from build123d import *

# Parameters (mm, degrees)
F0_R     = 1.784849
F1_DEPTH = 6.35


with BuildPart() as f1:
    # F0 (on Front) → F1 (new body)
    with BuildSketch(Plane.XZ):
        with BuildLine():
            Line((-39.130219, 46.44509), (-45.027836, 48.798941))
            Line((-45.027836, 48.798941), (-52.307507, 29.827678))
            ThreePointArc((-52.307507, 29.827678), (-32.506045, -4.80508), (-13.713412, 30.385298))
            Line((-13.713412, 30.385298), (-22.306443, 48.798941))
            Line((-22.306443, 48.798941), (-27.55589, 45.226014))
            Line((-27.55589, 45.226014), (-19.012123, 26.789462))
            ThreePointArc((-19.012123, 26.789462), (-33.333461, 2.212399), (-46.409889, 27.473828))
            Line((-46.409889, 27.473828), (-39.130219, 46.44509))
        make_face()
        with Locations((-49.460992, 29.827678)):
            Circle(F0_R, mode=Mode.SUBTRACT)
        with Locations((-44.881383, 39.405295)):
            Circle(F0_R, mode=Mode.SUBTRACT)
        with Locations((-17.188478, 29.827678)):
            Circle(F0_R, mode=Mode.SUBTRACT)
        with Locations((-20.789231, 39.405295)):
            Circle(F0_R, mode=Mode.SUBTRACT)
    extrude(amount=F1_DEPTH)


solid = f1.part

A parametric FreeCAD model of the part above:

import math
import FreeCAD as App
import Part
import Sketcher

V = App.Vector
Q = App.Units.Quantity

doc = App.newDocument("Part")
body = doc.addObject("PartDesign::Body", "Body")

sketch1 = doc.addObject("Sketcher::SketchObject", "Sketch")
body.addObject(sketch1)
sketch1.AttachmentSupport = (doc.XZ_Plane, [""])
sketch1.MapMode = "FlatFace"
sketch1.addGeometry(Part.LineSegment(V(-39.1, 46.4, 0), V(-45, 48.8, 0)), False)
sketch1.addGeometry(Part.LineSegment(V(-45, 48.8, 0), V(-52.3, 29.8, 0)), False)
sketch1.addGeometry(Part.ArcOfCircle(Part.Circle(V(-32.8, 18, 0), V(0, 0, 1), 22.8), math.radians(149), math.radians(393)), False)
sketch1.addGeometry(Part.LineSegment(V(-13.7, 30.4, 0), V(-22.3, 48.8, 0)), False)
sketch1.addGeometry(Part.LineSegment(V(-22.3, 48.8, 0), V(-27.6, 45.2, 0)), False)
sketch1.addGeometry(Part.LineSegment(V(-27.6, 45.2, 0), V(-19, 26.8, 0)), False)
sketch1.addGeometry(Part.ArcOfCircle(Part.Circle(V(-32.9, 18.4, 0), V(0, 0, 1), 16.2), math.radians(146), math.radians(391)), False)
sketch1.addGeometry(Part.LineSegment(V(-46.4, 27.5, 0), V(-39.1, 46.4, 0)), False)
sketch1.addGeometry(Part.Circle(V(-49.5, 29.8, 0), V(0, 0, 1), 1.8), False)
sketch1.addGeometry(Part.Circle(V(-17.2, 29.8, 0), V(0, 0, 1), 1.8), False)
sketch1.addGeometry(Part.Circle(V(-44.9, 39.4, 0), V(0, 0, 1), 1.8), False)
sketch1.addGeometry(Part.Circle(V(-20.8, 39.4, 0), V(0, 0, 1), 1.8), False)
sketch1.addConstraint(Sketcher.Constraint("Coincident", 0, 2, 1, 1))
sketch1.addConstraint(Sketcher.Constraint("Coincident", 1, 2, 2, 1))
sketch1.addConstraint(Sketcher.Constraint("Coincident", 2, 2, 3, 1))
sketch1.addConstraint(Sketcher.Constraint("Coincident", 3, 2, 4, 1))
sketch1.addConstraint(Sketcher.Constraint("Coincident", 4, 2, 5, 1))
sketch1.addConstraint(Sketcher.Constraint("Coincident", 5, 2, 6, 2))
sketch1.addConstraint(Sketcher.Constraint("Coincident", 6, 1, 7, 1))
sketch1.addConstraint(Sketcher.Constraint("Coincident", 7, 2, 0, 1))
sketch1.addConstraint(Sketcher.Constraint("Equal", 8, 9))
sketch1.addConstraint(Sketcher.Constraint("Equal", 9, 10))
sketch1.addConstraint(Sketcher.Constraint("Equal", 10, 11))
sketch1.addConstraint(Sketcher.Constraint("Parallel", 1, 7))
sketch1.addConstraint(Sketcher.Constraint("Horizontal", 8, 3, 9, 3))
sketch1.addConstraint(Sketcher.Constraint("Horizontal", 10, 3, 11, 3))
sketch1.addConstraint(Sketcher.Constraint("Horizontal", 9, 3, 1, 2))
sketch1.addConstraint(Sketcher.Constraint("Horizontal", 0, 2, 3, 2))
sketch1.addConstraint(Sketcher.Constraint("Equal", 1, 3))
sketch1.addConstraint(Sketcher.Constraint("Equal", 0, 4))
sketch1.addConstraint(Sketcher.Constraint("Equal", 3, 5))
sketch1.addConstraint(Sketcher.Constraint("Equal", 5, 7))
sketch1.addConstraint(Sketcher.Constraint("Distance", 1, Q("0.8 in")))
sketch1.addConstraint(Sketcher.Constraint("Distance", 0, Q("0.25 in")))
sketch1.addConstraint(Sketcher.Constraint("Diameter", 8, Q("3.569698 mm")))
sketch1.addConstraint(Sketcher.Constraint("Radius", 2, Q("22.791295 mm")))
sketch1.addConstraint(Sketcher.Constraint("Radius", 6, Q("16.230035 mm")))
sketch1.addConstraint(Sketcher.Constraint("DistanceY", 8, 3, 0, 2, Q("0.7469001 in")))
sketch1.addConstraint(Sketcher.Constraint("DistanceY", -1, 1, 2, 2, Q("30.385298 mm")))
sketch1.addConstraint(Sketcher.Constraint("DistanceX", 6, 3, 9, 3, Q("15.739701 mm")))
sketch1.addConstraint(Sketcher.Constraint("DistanceX", 1, 2, 2, 3, Q("19.472199 mm")))
sketch1.addConstraint(Sketcher.Constraint("DistanceX", 6, 3, -1, 1, Q("32.928179 mm")))
sketch1.addConstraint(Sketcher.Constraint("DistanceX", 8, 3, -1, 1, Q("49.460992 mm")))
sketch1.addConstraint(Sketcher.Constraint("DistanceX", 11, 3, -1, 1, Q("20.789231 mm")))
sketch1.addConstraint(Sketcher.Constraint("DistanceY", -1, 1, 0, 2, Q("48.798941 mm")))
sketch1.addConstraint(Sketcher.Constraint("DistanceX", 2, 2, -1, 1, Q("13.713412 mm")))
sketch1.addConstraint(Sketcher.Constraint("DistanceX", 4, 2, -1, 1, Q("27.55589 mm")))
sketch1.addConstraint(Sketcher.Constraint("DistanceX", 6, 1, -1, 1, Q("46.409889 mm")))
sketch1.addConstraint(Sketcher.Constraint("DistanceX", 8, 3, 10, 3, Q("4.579609 mm")))
sketch1.addConstraint(Sketcher.Constraint("DistanceY", 2, 3, 10, 3, Q("21.421458 mm")))
pad1 = doc.addObject("PartDesign::Pad", "Pad")
body.addObject(pad1)
pad1.Profile = sketch1
pad1.Length = Q("0.25 in")

doc.recompute()
